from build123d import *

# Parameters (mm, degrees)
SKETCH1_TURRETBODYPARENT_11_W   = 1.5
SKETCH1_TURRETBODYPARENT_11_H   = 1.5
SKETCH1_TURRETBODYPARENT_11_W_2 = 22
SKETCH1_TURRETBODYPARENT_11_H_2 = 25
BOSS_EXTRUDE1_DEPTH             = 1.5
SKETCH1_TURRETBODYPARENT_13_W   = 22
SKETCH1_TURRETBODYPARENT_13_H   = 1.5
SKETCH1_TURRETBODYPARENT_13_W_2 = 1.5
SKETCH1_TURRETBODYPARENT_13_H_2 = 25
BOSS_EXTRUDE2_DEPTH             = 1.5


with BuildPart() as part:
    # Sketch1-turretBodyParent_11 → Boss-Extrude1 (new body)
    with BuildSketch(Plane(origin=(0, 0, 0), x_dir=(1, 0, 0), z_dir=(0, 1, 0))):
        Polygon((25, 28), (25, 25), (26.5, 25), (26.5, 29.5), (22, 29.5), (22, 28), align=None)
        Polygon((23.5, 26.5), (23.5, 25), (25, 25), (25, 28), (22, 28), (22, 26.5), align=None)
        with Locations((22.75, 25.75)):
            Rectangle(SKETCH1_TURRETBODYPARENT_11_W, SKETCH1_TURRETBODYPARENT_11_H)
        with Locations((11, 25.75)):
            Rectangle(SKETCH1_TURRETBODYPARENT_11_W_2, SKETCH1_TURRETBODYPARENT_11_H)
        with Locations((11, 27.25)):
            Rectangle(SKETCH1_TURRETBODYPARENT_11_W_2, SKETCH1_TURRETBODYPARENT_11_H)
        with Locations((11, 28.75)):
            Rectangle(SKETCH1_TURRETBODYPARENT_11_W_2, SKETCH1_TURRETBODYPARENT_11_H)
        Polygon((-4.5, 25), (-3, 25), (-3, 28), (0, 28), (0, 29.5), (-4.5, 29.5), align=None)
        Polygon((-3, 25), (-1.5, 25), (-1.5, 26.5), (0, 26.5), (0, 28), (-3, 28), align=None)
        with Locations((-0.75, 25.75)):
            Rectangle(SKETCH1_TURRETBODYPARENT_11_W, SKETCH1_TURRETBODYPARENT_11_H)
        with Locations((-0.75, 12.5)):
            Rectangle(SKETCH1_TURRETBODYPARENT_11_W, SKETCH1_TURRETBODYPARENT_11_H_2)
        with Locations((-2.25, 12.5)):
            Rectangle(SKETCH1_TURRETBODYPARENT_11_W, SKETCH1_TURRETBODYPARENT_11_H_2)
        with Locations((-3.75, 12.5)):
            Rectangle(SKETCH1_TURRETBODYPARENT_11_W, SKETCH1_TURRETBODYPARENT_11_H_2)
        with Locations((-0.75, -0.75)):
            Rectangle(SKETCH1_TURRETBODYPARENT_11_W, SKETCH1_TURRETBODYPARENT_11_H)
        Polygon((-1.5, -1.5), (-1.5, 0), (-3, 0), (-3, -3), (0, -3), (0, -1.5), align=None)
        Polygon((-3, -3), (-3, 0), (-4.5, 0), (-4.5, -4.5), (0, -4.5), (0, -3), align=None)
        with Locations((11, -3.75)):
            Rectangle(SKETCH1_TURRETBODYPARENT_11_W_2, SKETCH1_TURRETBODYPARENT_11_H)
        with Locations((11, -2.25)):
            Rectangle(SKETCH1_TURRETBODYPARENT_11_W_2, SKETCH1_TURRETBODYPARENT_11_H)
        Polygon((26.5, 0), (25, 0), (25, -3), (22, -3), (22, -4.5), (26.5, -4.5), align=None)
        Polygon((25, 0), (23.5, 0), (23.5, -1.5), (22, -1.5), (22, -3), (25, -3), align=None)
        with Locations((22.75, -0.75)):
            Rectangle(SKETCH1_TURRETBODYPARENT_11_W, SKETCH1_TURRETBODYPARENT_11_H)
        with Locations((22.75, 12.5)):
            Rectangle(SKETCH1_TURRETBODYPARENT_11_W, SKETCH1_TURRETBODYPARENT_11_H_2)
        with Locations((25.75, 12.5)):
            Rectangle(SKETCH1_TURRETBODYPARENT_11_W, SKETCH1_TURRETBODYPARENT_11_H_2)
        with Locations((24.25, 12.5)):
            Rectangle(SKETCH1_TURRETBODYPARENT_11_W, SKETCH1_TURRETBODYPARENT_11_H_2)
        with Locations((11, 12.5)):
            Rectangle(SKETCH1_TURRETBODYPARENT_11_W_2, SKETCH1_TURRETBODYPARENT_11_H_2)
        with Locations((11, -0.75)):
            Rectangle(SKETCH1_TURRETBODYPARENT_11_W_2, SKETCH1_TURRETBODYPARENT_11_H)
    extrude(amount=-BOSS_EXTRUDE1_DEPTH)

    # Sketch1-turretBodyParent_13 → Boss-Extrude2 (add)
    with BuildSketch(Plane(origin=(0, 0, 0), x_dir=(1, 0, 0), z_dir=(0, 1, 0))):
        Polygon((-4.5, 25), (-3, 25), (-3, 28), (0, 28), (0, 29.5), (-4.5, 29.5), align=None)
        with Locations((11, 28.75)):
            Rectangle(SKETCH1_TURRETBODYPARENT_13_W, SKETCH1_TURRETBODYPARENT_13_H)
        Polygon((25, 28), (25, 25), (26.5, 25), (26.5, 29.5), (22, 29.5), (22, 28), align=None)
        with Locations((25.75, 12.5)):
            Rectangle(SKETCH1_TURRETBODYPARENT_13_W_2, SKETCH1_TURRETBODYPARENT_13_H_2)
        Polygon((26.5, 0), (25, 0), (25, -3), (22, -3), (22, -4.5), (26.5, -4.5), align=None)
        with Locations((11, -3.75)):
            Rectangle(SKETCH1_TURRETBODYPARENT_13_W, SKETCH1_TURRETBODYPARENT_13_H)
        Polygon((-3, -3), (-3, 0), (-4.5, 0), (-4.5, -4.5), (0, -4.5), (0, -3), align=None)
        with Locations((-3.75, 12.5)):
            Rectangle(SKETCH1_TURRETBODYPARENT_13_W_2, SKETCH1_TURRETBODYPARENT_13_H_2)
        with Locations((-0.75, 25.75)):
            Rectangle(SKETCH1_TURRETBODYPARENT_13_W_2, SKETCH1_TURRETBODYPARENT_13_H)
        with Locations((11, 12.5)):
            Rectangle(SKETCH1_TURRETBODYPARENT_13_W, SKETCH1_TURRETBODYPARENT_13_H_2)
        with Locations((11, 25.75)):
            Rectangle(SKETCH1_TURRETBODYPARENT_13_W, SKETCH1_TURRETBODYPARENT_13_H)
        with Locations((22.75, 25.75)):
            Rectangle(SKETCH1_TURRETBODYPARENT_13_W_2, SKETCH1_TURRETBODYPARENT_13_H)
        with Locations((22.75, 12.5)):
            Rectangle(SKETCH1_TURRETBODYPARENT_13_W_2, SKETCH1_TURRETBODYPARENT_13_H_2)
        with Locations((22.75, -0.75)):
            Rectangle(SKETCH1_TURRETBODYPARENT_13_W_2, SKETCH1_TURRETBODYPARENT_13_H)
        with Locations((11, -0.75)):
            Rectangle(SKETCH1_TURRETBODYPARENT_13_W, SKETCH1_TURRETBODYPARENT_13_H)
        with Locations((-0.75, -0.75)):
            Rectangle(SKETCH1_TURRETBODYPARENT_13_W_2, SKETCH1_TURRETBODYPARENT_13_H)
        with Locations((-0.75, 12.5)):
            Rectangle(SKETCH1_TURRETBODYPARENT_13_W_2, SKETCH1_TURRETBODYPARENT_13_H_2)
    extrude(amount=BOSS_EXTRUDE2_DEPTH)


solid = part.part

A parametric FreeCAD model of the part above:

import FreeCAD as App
import Part
import Sketcher

V = App.Vector
Q = App.Units.Quantity


def add_polygon(sketch, points):
    """Adds a closed chain of lines whose ends are joined by coincident constraints."""
    first, n = sketch.GeometryCount, len(points)
    for a, b in zip(points, points[1:] + points[:1]):
        sketch.addGeometry(Part.LineSegment(App.Vector(*a, 0), App.Vector(*b, 0)), False)
    for i in range(n):
        sketch.addConstraint(Sketcher.Constraint("Coincident", first + i, 2, first + (i + 1) % n, 1))

doc = App.newDocument("Part")
params = doc.addObject("Spreadsheet::Sheet", "Params")
for row, (alias, value) in enumerate([
    ("sketch1_width", "31 mm"),
    ("sketch1_height", "34 mm"),
    ("pad1_length", "1.5 mm"),
    ("sketch2_width", "31 mm"),
    ("sketch2_width2", "28 mm"),
    ("sketch2_width3", "25 mm"),
    ("sketch2_height", "34 mm"),
    ("pad2_length", "1.5 mm"),
], start=1):
    params.set(f"A{row}", alias)
    params.set(f"B{row}", "=" + value)
    params.setAlias(f"B{row}", alias)

body = doc.addObject("PartDesign::Body", "Body")

sketch1 = body.newObject("Sketcher::SketchObject", "Sketch")
sketch1.AttachmentSupport = (doc.getObject("XZ_Plane"), [""])
sketch1.MapMode = "FlatFace"
add_polygon(sketch1, [(26, -30), (-4, -30), (-4, 4), (26, 4)])
sketch1.addConstraint(Sketcher.Constraint("Horizontal", 0))
sketch1.addConstraint(Sketcher.Constraint("Vertical", 1))
sketch1.addConstraint(Sketcher.Constraint("Horizontal", 2))
sketch1.addConstraint(Sketcher.Constraint("Vertical", 3))
sketch1.addConstraint(Sketcher.Constraint("DistanceX", 0, 2, 0, 1, Q("31 mm")))
sketch1.addConstraint(Sketcher.Constraint("DistanceY", 1, 1, 1, 2, Q("34 mm")))
sketch1.addConstraint(Sketcher.Constraint("DistanceX", 0, 2, -1, 1, Q("4.5 mm")))
sketch1.addConstraint(Sketcher.Constraint("DistanceY", 0, 2, -1, 1, Q("29.5 mm")))
sketch1.setExpression("Constraints[8]", "Params.sketch1_width")
sketch1.setExpression("Constraints[9]", "Params.sketch1_height")
pad1 = body.newObject("PartDesign::Pad", "Pad")
pad1.Profile = sketch1
pad1.setExpression("Length", "Params.pad1_length")

sketch2 = body.newObject("Sketcher::SketchObject", "Sketch001")
sketch2.AttachmentSupport = (doc.getObject("XZ_Plane"), [""])
sketch2.MapMode = "FlatFace"
add_polygon(sketch2, [(-4, 4), (26, 4), (26, -30), (-4, -30)])
add_polygon(sketch2, [(-3, -28), (25, -28), (25, 3), (-3, 3)])
add_polygon(sketch2, [(-2, -26), (-2, 2), (24, 2), (24, -26)])
sketch2.addConstraint(Sketcher.Constraint("Horizontal", 0))
sketch2.addConstraint(Sketcher.Constraint("Vertical", 1))
sketch2.addConstraint(Sketcher.Constraint("Horizontal", 2))
sketch2.addConstraint(Sketcher.Constraint("Vertical", 3))
sketch2.addConstraint(Sketcher.Constraint("Horizontal", 4))
sketch2.addConstraint(Sketcher.Constraint("Vertical", 5))
sketch2.addConstraint(Sketcher.Constraint("Horizontal", 6))
sketch2.addConstraint(Sketcher.Constraint("Vertical", 7))
sketch2.addConstraint(Sketcher.Constraint("Vertical", 8))
sketch2.addConstraint(Sketcher.Constraint("Horizontal", 9))
sketch2.addConstraint(Sketcher.Constraint("Vertical", 10))
sketch2.addConstraint(Sketcher.Constraint("Horizontal", 11))
sketch2.addConstraint(Sketcher.Constraint("Equal", 2, 5))
sketch2.addConstraint(Sketcher.Constraint("Equal", 6, 8))
sketch2.addConstraint(Sketcher.Constraint("DistanceX", 0, 1, 0, 2, Q("31 mm")))
sketch2.addConstraint(Sketcher.Constraint("DistanceX", 4, 1, 4, 2, Q("28 mm")))
sketch2.addConstraint(Sketcher.Constraint("DistanceX", 9, 1, 9, 2, Q("25 mm")))
sketch2.addConstraint(Sketcher.Constraint("DistanceY", 1, 2, 1, 1, Q("34 mm")))
sketch2.addConstraint(Sketcher.Constraint("DistanceX", -1, 1, 4, 2, Q("25 mm")))
sketch2.addConstraint(Sketcher.Constraint("DistanceY", 4, 2, -1, 1, Q("28 mm")))
sketch2.addConstraint(Sketcher.Constraint("DistanceX", 3, 2, 8, 2, Q("3 mm")))
sketch2.addConstraint(Sketcher.Constraint("DistanceY", 8, 2, 3, 2, Q("3 mm")))
sketch2.addConstraint(Sketcher.Constraint("DistanceX", -1, 1, 0, 2, Q("26.5 mm")))
sketch2.addConstraint(Sketcher.Constraint("DistanceY", -1, 1, 0, 2, Q("4.5 mm")))
sketch2.setExpression("Constraints[26]", "Params.sketch2_width")
sketch2.setExpression("Constraints[27]", "Params.sketch2_width2")
sketch2.setExpression("Constraints[28]", "Params.sketch2_width3")
sketch2.setExpression("Constraints[29]", "Params.sketch2_height")
pad2 = body.newObject("PartDesign::Pad", "Pad001")
pad2.Profile = sketch2
pad2.setExpression("Length", "Params.pad2_length")
pad2.Reversed = True

doc.recompute()
